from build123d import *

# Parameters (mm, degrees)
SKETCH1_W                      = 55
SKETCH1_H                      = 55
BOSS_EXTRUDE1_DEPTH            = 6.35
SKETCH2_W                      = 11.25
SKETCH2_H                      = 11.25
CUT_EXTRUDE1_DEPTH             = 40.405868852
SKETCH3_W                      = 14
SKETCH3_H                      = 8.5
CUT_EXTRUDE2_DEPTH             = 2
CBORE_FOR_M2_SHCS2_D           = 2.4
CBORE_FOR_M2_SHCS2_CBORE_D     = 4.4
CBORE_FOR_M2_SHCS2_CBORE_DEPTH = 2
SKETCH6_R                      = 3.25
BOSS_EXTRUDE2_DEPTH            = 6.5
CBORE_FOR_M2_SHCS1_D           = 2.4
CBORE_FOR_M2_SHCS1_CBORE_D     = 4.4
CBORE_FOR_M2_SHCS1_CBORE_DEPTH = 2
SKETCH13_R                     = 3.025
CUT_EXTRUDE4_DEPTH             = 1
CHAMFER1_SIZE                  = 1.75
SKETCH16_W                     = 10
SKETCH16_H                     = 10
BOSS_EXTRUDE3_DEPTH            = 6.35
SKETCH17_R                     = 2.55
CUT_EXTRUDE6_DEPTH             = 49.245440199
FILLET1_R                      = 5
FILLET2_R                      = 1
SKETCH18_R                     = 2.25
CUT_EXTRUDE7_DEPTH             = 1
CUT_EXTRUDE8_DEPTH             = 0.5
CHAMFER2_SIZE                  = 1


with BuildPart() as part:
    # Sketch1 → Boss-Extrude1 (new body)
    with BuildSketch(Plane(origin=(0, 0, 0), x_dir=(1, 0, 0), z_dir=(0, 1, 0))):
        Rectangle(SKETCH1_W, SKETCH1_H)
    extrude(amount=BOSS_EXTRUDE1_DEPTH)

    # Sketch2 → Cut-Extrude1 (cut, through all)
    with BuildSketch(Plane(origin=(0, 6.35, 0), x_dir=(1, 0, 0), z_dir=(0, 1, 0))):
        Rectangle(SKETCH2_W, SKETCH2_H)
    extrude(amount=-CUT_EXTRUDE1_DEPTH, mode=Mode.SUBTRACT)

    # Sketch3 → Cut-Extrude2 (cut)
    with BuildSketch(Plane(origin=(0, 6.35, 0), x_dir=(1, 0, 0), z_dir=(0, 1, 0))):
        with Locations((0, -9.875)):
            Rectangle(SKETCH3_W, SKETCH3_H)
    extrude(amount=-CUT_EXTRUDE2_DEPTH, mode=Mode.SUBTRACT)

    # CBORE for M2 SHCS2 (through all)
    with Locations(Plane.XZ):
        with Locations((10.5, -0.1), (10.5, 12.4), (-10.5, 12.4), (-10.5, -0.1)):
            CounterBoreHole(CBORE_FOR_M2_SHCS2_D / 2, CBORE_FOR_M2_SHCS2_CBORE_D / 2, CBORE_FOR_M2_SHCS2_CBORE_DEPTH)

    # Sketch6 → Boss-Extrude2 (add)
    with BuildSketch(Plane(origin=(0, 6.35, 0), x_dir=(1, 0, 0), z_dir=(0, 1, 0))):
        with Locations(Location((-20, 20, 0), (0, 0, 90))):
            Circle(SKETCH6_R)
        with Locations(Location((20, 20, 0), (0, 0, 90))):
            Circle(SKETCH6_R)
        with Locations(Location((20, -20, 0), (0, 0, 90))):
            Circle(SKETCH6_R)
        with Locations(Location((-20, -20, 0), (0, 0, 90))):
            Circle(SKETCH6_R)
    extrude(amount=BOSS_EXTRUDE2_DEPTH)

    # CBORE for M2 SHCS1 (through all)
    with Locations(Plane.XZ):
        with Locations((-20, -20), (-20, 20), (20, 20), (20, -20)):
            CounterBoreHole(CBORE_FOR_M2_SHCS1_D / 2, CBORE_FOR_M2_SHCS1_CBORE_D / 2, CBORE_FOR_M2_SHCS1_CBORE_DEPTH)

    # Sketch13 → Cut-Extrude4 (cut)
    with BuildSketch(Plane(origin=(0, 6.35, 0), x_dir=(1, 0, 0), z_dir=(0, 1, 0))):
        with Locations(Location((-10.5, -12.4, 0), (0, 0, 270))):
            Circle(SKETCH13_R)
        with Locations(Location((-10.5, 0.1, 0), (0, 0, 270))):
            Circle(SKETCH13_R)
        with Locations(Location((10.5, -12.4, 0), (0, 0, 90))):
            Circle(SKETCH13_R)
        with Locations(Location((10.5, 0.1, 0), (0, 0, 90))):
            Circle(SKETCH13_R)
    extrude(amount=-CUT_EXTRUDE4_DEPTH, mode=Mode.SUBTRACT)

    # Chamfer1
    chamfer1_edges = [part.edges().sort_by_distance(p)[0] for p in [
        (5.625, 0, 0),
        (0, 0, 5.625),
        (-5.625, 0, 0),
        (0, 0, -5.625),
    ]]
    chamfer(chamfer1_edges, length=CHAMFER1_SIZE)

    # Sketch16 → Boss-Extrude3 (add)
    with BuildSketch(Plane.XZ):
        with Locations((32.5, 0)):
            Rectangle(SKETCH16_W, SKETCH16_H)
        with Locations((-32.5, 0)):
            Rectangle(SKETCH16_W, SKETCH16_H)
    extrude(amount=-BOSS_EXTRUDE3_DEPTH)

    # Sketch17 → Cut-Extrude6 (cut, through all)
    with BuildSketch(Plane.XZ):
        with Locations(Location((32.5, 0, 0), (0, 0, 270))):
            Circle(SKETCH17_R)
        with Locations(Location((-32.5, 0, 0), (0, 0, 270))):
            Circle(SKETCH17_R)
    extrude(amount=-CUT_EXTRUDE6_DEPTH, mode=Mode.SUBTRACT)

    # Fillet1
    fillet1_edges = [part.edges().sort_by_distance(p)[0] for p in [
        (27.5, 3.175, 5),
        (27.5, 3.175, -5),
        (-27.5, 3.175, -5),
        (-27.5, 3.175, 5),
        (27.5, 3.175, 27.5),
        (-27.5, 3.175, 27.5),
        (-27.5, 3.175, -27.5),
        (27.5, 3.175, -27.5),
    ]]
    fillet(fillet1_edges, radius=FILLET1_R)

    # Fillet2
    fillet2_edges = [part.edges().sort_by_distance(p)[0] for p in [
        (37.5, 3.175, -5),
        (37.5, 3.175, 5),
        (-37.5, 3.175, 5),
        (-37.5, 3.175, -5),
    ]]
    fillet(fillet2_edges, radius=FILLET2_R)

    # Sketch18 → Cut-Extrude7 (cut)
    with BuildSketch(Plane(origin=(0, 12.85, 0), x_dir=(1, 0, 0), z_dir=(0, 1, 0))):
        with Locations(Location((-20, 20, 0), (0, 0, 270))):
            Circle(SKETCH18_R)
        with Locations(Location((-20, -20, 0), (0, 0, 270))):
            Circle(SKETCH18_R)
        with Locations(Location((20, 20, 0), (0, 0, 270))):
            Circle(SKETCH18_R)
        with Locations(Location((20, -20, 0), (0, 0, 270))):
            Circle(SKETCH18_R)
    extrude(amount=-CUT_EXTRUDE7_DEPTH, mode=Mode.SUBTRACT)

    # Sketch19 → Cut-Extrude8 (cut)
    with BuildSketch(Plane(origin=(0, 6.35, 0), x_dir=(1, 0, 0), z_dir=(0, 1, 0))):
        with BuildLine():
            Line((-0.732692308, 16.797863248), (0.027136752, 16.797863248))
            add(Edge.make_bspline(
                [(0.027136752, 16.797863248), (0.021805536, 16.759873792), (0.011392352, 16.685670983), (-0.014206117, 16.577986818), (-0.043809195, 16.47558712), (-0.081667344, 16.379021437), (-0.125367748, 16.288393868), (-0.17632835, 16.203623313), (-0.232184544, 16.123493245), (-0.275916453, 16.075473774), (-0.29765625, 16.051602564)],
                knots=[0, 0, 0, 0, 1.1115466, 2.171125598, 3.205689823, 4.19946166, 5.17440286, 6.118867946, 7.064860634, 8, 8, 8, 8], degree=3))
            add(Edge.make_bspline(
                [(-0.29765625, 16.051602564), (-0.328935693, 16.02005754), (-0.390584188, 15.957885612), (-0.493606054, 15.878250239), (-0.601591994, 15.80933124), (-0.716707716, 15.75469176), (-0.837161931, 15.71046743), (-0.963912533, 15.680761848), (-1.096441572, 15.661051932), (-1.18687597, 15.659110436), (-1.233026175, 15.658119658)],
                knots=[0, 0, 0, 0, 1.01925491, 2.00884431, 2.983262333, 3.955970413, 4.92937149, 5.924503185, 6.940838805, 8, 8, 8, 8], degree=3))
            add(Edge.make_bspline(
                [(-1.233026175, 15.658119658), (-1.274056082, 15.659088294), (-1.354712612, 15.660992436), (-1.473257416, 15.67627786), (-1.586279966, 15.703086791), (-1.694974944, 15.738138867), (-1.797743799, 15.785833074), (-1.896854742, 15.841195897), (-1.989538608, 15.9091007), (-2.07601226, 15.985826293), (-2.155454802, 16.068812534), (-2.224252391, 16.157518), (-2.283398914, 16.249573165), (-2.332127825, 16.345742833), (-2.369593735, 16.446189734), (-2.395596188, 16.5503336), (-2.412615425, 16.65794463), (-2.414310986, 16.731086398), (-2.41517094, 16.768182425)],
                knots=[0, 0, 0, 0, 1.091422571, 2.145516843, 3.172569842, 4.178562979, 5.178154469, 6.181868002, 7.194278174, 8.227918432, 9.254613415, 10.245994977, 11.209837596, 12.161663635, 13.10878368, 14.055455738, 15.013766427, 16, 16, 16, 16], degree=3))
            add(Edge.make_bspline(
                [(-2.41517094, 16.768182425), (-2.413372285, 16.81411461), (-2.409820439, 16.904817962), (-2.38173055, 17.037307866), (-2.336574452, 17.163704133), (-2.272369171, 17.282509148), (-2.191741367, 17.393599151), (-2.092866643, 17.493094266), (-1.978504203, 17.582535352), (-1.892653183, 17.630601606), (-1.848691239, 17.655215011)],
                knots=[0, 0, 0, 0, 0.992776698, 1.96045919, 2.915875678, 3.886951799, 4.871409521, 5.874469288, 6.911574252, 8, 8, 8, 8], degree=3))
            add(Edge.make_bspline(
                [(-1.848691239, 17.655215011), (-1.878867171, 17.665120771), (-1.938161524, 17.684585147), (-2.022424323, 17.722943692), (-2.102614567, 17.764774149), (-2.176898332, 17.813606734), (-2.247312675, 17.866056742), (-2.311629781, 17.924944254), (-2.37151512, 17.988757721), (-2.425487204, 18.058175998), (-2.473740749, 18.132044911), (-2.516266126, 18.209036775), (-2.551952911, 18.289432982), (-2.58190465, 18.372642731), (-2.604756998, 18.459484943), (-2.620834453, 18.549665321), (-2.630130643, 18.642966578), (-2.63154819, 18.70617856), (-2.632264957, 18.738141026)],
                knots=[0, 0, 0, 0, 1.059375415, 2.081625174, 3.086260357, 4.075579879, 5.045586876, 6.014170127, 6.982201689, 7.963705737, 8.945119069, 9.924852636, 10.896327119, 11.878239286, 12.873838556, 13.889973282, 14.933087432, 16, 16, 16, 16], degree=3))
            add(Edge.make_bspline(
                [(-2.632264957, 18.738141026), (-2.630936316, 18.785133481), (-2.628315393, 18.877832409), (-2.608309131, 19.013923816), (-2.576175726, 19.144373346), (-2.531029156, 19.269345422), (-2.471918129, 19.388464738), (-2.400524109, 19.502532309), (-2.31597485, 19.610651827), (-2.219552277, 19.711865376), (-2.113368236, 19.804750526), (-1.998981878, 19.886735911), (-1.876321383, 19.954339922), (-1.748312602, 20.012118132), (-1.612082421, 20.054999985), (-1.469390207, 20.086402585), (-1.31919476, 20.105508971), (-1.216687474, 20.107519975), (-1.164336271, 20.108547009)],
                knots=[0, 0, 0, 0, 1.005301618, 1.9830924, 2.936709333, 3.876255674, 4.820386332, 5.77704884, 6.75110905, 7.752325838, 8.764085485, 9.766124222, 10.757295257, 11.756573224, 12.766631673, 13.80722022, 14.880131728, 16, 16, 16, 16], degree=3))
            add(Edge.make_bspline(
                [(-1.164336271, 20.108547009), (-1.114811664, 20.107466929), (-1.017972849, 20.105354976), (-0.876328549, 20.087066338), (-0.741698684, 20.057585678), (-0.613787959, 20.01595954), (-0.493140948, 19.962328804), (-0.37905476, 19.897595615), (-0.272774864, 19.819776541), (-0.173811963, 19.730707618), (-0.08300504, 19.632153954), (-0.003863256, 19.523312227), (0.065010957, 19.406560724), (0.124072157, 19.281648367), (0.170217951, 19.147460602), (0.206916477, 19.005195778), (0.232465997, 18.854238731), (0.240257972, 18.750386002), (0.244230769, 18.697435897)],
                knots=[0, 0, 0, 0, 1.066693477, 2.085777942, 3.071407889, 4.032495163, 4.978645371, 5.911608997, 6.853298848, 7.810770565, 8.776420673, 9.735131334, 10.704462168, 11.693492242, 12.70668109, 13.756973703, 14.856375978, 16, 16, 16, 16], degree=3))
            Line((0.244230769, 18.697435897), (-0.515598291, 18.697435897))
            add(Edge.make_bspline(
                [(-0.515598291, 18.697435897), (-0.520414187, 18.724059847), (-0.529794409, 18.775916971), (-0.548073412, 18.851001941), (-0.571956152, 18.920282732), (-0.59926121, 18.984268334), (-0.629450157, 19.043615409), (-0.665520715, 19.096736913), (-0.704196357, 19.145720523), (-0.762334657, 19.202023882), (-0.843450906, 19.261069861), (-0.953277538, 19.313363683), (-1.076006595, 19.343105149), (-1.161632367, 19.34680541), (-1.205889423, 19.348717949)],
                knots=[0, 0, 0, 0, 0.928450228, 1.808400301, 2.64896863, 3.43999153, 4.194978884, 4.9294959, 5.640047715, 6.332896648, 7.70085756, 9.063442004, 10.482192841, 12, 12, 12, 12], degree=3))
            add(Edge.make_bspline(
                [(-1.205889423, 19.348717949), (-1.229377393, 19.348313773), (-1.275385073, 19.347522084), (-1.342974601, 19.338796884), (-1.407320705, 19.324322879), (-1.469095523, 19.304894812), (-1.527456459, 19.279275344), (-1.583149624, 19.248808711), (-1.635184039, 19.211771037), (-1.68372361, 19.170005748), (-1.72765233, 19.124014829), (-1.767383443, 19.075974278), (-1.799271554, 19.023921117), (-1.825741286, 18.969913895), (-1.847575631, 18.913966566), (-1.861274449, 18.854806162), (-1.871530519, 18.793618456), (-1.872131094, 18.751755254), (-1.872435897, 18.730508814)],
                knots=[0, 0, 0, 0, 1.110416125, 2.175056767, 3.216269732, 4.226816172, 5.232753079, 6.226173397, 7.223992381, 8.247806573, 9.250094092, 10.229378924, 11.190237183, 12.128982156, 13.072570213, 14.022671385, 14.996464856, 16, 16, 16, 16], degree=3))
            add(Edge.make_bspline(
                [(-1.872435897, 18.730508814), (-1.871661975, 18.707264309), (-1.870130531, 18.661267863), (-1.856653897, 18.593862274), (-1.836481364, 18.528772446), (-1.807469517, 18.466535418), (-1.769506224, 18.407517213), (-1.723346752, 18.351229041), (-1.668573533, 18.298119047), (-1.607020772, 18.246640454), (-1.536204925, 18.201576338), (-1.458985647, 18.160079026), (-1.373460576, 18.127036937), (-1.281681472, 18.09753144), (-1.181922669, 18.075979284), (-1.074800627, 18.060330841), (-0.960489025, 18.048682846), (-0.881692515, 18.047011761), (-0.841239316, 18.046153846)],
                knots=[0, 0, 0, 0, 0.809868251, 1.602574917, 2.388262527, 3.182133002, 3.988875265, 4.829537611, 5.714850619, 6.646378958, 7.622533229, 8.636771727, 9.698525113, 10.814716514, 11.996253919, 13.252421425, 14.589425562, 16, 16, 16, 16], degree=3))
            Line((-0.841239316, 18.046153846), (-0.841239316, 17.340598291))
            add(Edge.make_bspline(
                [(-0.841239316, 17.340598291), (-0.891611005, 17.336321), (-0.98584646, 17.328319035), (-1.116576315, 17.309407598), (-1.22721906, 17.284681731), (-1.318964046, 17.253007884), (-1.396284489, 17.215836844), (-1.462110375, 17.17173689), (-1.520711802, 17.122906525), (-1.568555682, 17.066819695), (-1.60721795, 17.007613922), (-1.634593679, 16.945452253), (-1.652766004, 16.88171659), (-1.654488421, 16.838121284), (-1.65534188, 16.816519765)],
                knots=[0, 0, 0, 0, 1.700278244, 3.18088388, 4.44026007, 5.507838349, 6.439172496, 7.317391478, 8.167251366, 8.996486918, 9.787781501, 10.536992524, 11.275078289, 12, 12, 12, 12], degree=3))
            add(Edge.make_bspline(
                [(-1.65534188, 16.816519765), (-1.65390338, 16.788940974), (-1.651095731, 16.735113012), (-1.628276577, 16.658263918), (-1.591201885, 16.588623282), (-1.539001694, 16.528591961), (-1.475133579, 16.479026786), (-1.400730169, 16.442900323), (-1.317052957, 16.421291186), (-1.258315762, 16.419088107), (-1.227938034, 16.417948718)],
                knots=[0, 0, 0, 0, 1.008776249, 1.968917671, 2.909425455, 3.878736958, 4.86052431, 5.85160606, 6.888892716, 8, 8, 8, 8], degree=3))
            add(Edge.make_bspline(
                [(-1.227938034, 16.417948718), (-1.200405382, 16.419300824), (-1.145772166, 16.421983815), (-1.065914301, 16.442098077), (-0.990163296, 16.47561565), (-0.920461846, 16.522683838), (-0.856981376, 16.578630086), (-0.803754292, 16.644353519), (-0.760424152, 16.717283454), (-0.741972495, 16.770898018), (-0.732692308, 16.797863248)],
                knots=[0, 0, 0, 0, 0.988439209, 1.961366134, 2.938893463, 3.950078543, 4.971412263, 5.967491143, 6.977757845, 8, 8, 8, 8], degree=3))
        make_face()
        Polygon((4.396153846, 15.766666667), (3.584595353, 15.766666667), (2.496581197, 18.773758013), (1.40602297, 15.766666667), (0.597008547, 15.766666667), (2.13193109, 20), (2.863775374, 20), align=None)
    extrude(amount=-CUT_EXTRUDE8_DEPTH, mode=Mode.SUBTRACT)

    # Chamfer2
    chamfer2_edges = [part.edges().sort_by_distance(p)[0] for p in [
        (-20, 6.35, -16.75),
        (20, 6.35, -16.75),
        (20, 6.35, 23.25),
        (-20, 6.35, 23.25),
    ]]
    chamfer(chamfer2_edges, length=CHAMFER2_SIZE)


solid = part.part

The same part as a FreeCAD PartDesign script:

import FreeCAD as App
import Part
import Sketcher

V = App.Vector


def edges_at(feature, points):
    """Names of the edges that pass closest to the given points."""
    edges = feature.Shape.Edges
    near = lambda p: min(range(len(edges)), key=lambda i: edges[i].distToShape(Part.Vertex(*p))[0])
    return sorted({f"Edge{near(p) + 1}" for p in points})

doc = App.newDocument("Part")
body = doc.addObject("PartDesign::Body", "Body")

# Sketch on XZ plane
sketch1 = body.newObject("Sketcher::SketchObject", "Sketch")
sketch1.AttachmentSupport = (doc.getObject("XZ_Plane"), [""])
sketch1.MapMode = "FlatFace"
sketch1.addGeometry(Part.LineSegment(V(-28, -28, 0), V(-28, 28, 0)), False)
sketch1.addGeometry(Part.LineSegment(V(-28, 28, 0), V(28, 28, 0)), False)
sketch1.addGeometry(Part.LineSegment(V(28, 28, 0), V(28, -28, 0)), False)
sketch1.addGeometry(Part.LineSegment(V(28, -28, 0), V(-28, -28, 0)), False)
sketch1.addConstraint(Sketcher.Constraint("Coincident", 0, 2, 1, 1))
sketch1.addConstraint(Sketcher.Constraint("Coincident", 1, 2, 2, 1))
sketch1.addConstraint(Sketcher.Constraint("Coincident", 2, 2, 3, 1))
sketch1.addConstraint(Sketcher.Constraint("Coincident", 3, 2, 0, 1))
sketch1.addConstraint(Sketcher.Constraint("Vertical", 0))
sketch1.addConstraint(Sketcher.Constraint("Horizontal", 1))
sketch1.addConstraint(Sketcher.Constraint("Vertical", 2))
sketch1.addConstraint(Sketcher.Constraint("Horizontal", 3))
sketch1.addConstraint(Sketcher.Constraint("Symmetric", 0, 2, 2, 2, -1, 1))
sketch1.addConstraint(Sketcher.Constraint("Equal", 3, 0))
sketch1.addConstraint(Sketcher.Constraint("DistanceX", 1, 1, 1, 2, 55.0))
pad1 = body.newObject("PartDesign::Pad", "Pad")
pad1.Profile = sketch1
pad1.Length = 6.35
pad1.Reversed = True

# Sketch on XZ plane
sketch2 = body.newObject("Sketcher::SketchObject", "Sketch001")
sketch2.AttachmentSupport = (doc.getObject("XZ_Plane"), [""])
sketch2.MapMode = "FlatFace"
sketch2.AttachmentOffset = App.Placement(V(0, 0, -6.35), App.Rotation())
sketch2.addGeometry(Part.LineSegment(V(-6, -6, 0), V(-6, 6, 0)), False)
sketch2.addGeometry(Part.LineSegment(V(-6, 6, 0), V(6, 6, 0)), False)
sketch2.addGeometry(Part.LineSegment(V(6, 6, 0), V(6, -6, 0)), False)
sketch2.addGeometry(Part.LineSegment(V(6, -6, 0), V(-6, -6, 0)), False)
sketch2.addConstraint(Sketcher.Constraint("Coincident", 0, 2, 1, 1))
sketch2.addConstraint(Sketcher.Constraint("Coincident", 1, 2, 2, 1))
sketch2.addConstraint(Sketcher.Constraint("Coincident", 2, 2, 3, 1))
sketch2.addConstraint(Sketcher.Constraint("Coincident", 3, 2, 0, 1))
sketch2.addConstraint(Sketcher.Constraint("Vertical", 0))
sketch2.addConstraint(Sketcher.Constraint("Horizontal", 1))
sketch2.addConstraint(Sketcher.Constraint("Vertical", 2))
sketch2.addConstraint(Sketcher.Constraint("Horizontal", 3))
sketch2.addConstraint(Sketcher.Constraint("Symmetric", 0, 2, 2, 2, -1, 1))
sketch2.addConstraint(Sketcher.Constraint("Equal", 3, 0))
sketch2.addConstraint(Sketcher.Constraint("DistanceX", 1, 1, 1, 2, 11.25))
pocket1 = body.newObject("PartDesign::Pocket", "Pocket")
pocket1.Profile = sketch2
pocket1.Type = "ThroughAll"
pocket1.Reversed = True

# Sketch on XZ plane
sketch3 = body.newObject("Sketcher::SketchObject", "Sketch002")
sketch3.AttachmentSupport = (doc.getObject("XZ_Plane"), [""])
sketch3.MapMode = "FlatFace"
sketch3.AttachmentOffset = App.Placement(V(0, 0, -6.35), App.Rotation())
sketch3.addGeometry(Part.LineSegment(V(-7, 6, 0), V(-7, 14, 0)), False)
sketch3.addGeometry(Part.LineSegment(V(-7, 14, 0), V(7, 14, 0)), False)
sketch3.addGeometry(Part.LineSegment(V(7, 14, 0), V(7, 6, 0)), False)
sketch3.addGeometry(Part.LineSegment(V(7, 6, 0), V(-7, 6, 0)), False)
sketch3.addConstraint(Sketcher.Constraint("Coincident", 0, 2, 1, 1))
sketch3.addConstraint(Sketcher.Constraint("Coincident", 1, 2, 2, 1))
sketch3.addConstraint(Sketcher.Constraint("Coincident", 2, 2, 3, 1))
sketch3.addConstraint(Sketcher.Constraint("Coincident", 3, 2, 0, 1))
sketch3.addConstraint(Sketcher.Constraint("Vertical", 0))
sketch3.addConstraint(Sketcher.Constraint("Horizontal", 1))
sketch3.addConstraint(Sketcher.Constraint("Vertical", 2))
sketch3.addConstraint(Sketcher.Constraint("Horizontal", 3))
sketch3.addConstraint(Sketcher.Constraint("DistanceX", 1, 1, 1, 2, 14.0))
sketch3.addConstraint(Sketcher.Constraint("DistanceY", 0, 1, 0, 2, 8.5))
sketch3.addConstraint(Sketcher.Constraint("DistanceX", 0, 2, -1, 1, 7.0))
sketch3.addConstraint(Sketcher.Constraint("DistanceY", -1, 1, 0, 2, 14.125))
pocket2 = body.newObject("PartDesign::Pocket", "Pocket001")
pocket2.Profile = sketch3
pocket2.Length = 2
pocket2.Reversed = True

# Sketch on XZ plane
sketch4 = body.newObject("Sketcher::SketchObject", "Sketch003")
sketch4.AttachmentSupport = (doc.getObject("XZ_Plane"), [""])
sketch4.MapMode = "FlatFace"
sketch4.addGeometry(Part.Circle(V(10.5, -0.1, 0), V(0, 0, 1), 1.2), False)
sketch4.addGeometry(Part.Circle(V(10.5, 12.4, 0), V(0, 0, 1), 1.2), False)
sketch4.addGeometry(Part.Circle(V(-10.5, 12.4, 0), V(0, 0, 1), 1.2), False)
sketch4.addGeometry(Part.Circle(V(-10.5, -0.1, 0), V(0, 0, 1), 1.2), False)
sketch4.addConstraint(Sketcher.Constraint("Equal", 0, 1))
sketch4.addConstraint(Sketcher.Constraint("Equal", 1, 2))
sketch4.addConstraint(Sketcher.Constraint("Equal", 2, 3))
sketch4.addConstraint(Sketcher.Constraint("Symmetric", 1, 3, 2, 3, -2))
sketch4.addConstraint(Sketcher.Constraint("Symmetric", 0, 3, 3, 3, -2))
sketch4.addConstraint(Sketcher.Constraint("Vertical", 0, 3, 1, 3))
sketch4.addConstraint(Sketcher.Constraint("Diameter", 0, 2.4))
sketch4.addConstraint(Sketcher.Constraint("DistanceX", 2, 3, 1, 3, 21.0))
sketch4.addConstraint(Sketcher.Constraint("DistanceY", 0, 3, -1, 1, 0.1))
sketch4.addConstraint(Sketcher.Constraint("DistanceY", -1, 1, 1, 3, 12.4))
doc.recompute()
hole = body.newObject("PartDesign::Hole", "Hole")
hole.Profile = sketch4
hole.ThreadType = "None"
hole.Diameter = 2.4
hole.DepthType = "ThroughAll"
hole.HoleCutType = "Counterbore"
hole.HoleCutDiameter = 4.4
hole.HoleCutDepth = 2

# Sketch on XZ plane
sketch5 = body.newObject("Sketcher::SketchObject", "Sketch004")
sketch5.AttachmentSupport = (doc.getObject("XZ_Plane"), [""])
sketch5.MapMode = "FlatFace"
sketch5.AttachmentOffset = App.Placement(V(0, 0, -6.35), App.Rotation())
sketch5.addGeometry(Part.Circle(V(-20, -20, 0), V(0, 0, 1), 3.2), False)
sketch5.addGeometry(Part.Circle(V(20, -20, 0), V(0, 0, 1), 3.2), False)
sketch5.addGeometry(Part.Circle(V(20, 20, 0), V(0, 0, 1), 3.2), False)
sketch5.addGeometry(Part.Circle(V(-20, 20, 0), V(0, 0, 1), 3.2), False)
sketch5.addConstraint(Sketcher.Constraint("Equal", 0, 1))
sketch5.addConstraint(Sketcher.Constraint("Equal", 1, 2))
sketch5.addConstraint(Sketcher.Constraint("Equal", 2, 3))
sketch5.addConstraint(Sketcher.Constraint("Symmetric", 0, 3, 2, 3, -1, 1))
sketch5.addConstraint(Sketcher.Constraint("Symmetric", 1, 3, 3, 3, -1, 1))
sketch5.addConstraint(Sketcher.Constraint("Symmetric", 0, 3, 1, 3, -2))
sketch5.addConstraint(Sketcher.Constraint("Diameter", 0, 6.5))
sketch5.addConstraint(Sketcher.Constraint("DistanceX", 0, 3, -1, 1, 20.0))
sketch5.addConstraint(Sketcher.Constraint("DistanceY", 0, 3, -1, 1, 20.0))
pad2 = body.newObject("PartDesign::Pad", "Pad001")
pad2.Profile = sketch5
pad2.Length = 6.5
pad2.Reversed = True

# Sketch on XZ plane
sketch6 = body.newObject("Sketcher::SketchObject", "Sketch005")
sketch6.AttachmentSupport = (doc.getObject("XZ_Plane"), [""])
sketch6.MapMode = "FlatFace"
sketch6.addGeometry(Part.Circle(V(-20, -20, 0), V(0, 0, 1), 1.2), False)
sketch6.addGeometry(Part.Circle(V(-20, 20, 0), V(0, 0, 1), 1.2), False)
sketch6.addGeometry(Part.Circle(V(20, 20, 0), V(0, 0, 1), 1.2), False)
sketch6.addGeometry(Part.Circle(V(20, -20, 0), V(0, 0, 1), 1.2), False)
sketch6.addConstraint(Sketcher.Constraint("Equal", 0, 1))
sketch6.addConstraint(Sketcher.Constraint("Equal", 1, 2))
sketch6.addConstraint(Sketcher.Constraint("Equal", 2, 3))
sketch6.addConstraint(Sketcher.Constraint("Symmetric", 0, 3, 2, 3, -1, 1))
sketch6.addConstraint(Sketcher.Constraint("Symmetric", 1, 3, 3, 3, -1, 1))
sketch6.addConstraint(Sketcher.Constraint("Symmetric", 1, 3, 2, 3, -2))
sketch6.addConstraint(Sketcher.Constraint("Diameter", 0, 2.4))
sketch6.addConstraint(Sketcher.Constraint("DistanceX", 0, 3, -1, 1, 20.0))
sketch6.addConstraint(Sketcher.Constraint("DistanceY", 0, 3, -1, 1, 20.0))
doc.recompute()
hole2 = body.newObject("PartDesign::Hole", "Hole001")
hole2.Profile = sketch6
hole2.ThreadType = "None"
hole2.Diameter = 2.4
hole2.DepthType = "ThroughAll"
hole2.HoleCutType = "Counterbore"
hole2.HoleCutDiameter = 4.4
hole2.HoleCutDepth = 2

# Sketch on XZ plane
sketch7 = body.newObject("Sketcher::SketchObject", "Sketch006")
sketch7.AttachmentSupport = (doc.getObject("XZ_Plane"), [""])
sketch7.MapMode = "FlatFace"
sketch7.AttachmentOffset = App.Placement(V(0, 0, -6.35), App.Rotation())
sketch7.addGeometry(Part.Circle(V(-10.5, 12.4, 0), V(0, 0, 1), 3), False)
sketch7.addGeometry(Part.Circle(V(-10.5, -0.1, 0), V(0, 0, 1), 3), False)
sketch7.addGeometry(Part.Circle(V(10.5, 12.4, 0), V(0, 0, 1), 3), False)
sketch7.addGeometry(Part.Circle(V(10.5, -0.1, 0), V(0, 0, 1), 3), False)
sketch7.addConstraint(Sketcher.Constraint("Equal", 0, 1))
sketch7.addConstraint(Sketcher.Constraint("Equal", 1, 2))
sketch7.addConstraint(Sketcher.Constraint("Equal", 2, 3))
sketch7.addConstraint(Sketcher.Constraint("Symmetric", 0, 3, 2, 3, -2))
sketch7.addConstraint(Sketcher.Constraint("Symmetric", 1, 3, 3, 3, -2))
sketch7.addConstraint(Sketcher.Constraint("Vertical", 0, 3, 1, 3))
sketch7.addConstraint(Sketcher.Constraint("Diameter", 0, 6.05))
sketch7.addConstraint(Sketcher.Constraint("DistanceX", 0, 3, 2, 3, 21.0))
sketch7.addConstraint(Sketcher.Constraint("DistanceY", -1, 1, 0, 3, 12.4))
sketch7.addConstraint(Sketcher.Constraint("DistanceY", 1, 3, -1, 1, 0.1))
pocket3 = body.newObject("PartDesign::Pocket", "Pocket002")
pocket3.Profile = sketch7
pocket3.Length = 1
pocket3.Reversed = True
doc.recompute()

chamfer = body.newObject("PartDesign::Chamfer", "Chamfer")
chamfer.Base = (pocket3, edges_at(pocket3, [
    (5.625, 0, 0),
    (0, 0, 5.625),
    (-5.625, 0, 0),
    (0, 0, -5.625),
]))
chamfer.Size = 1.75

# Sketch on XZ plane
sketch8 = body.newObject("Sketcher::SketchObject", "Sketch007")
sketch8.AttachmentSupport = (doc.getObject("XZ_Plane"), [""])
sketch8.MapMode = "FlatFace"
sketch8.addGeometry(Part.LineSegment(V(28, 5, 0), V(28, -5, 0)), False)
sketch8.addGeometry(Part.LineSegment(V(28, -5, 0), V(38, -5, 0)), False)
sketch8.addGeometry(Part.LineSegment(V(38, -5, 0), V(38, 5, 0)), False)
sketch8.addGeometry(Part.LineSegment(V(38, 5, 0), V(28, 5, 0)), False)
sketch8.addGeometry(Part.LineSegment(V(-38, 5, 0), V(-38, -5, 0)), False)
sketch8.addGeometry(Part.LineSegment(V(-38, -5, 0), V(-28, -5, 0)), False)
sketch8.addGeometry(Part.LineSegment(V(-28, -5, 0), V(-28, 5, 0)), False)
sketch8.addGeometry(Part.LineSegment(V(-28, 5, 0), V(-38, 5, 0)), False)
sketch8.addConstraint(Sketcher.Constraint("Coincident", 0, 2, 1, 1))
sketch8.addConstraint(Sketcher.Constraint("Coincident", 1, 2, 2, 1))
sketch8.addConstraint(Sketcher.Constraint("Coincident", 2, 2, 3, 1))
sketch8.addConstraint(Sketcher.Constraint("Coincident", 3, 2, 0, 1))
sketch8.addConstraint(Sketcher.Constraint("Coincident", 4, 2, 5, 1))
sketch8.addConstraint(Sketcher.Constraint("Coincident", 5, 2, 6, 1))
sketch8.addConstraint(Sketcher.Constraint("Coincident", 6, 2, 7, 1))
sketch8.addConstraint(Sketcher.Constraint("Coincident", 7, 2, 4, 1))
sketch8.addConstraint(Sketcher.Constraint("Vertical", 0))
sketch8.addConstraint(Sketcher.Constraint("Horizontal", 1))
sketch8.addConstraint(Sketcher.Constraint("Vertical", 2))
sketch8.addConstraint(Sketcher.Constraint("Horizontal", 3))
sketch8.addConstraint(Sketcher.Constraint("Vertical", 4))
sketch8.addConstraint(Sketcher.Constraint("Horizontal", 5))
sketch8.addConstraint(Sketcher.Constraint("Vertical", 6))
sketch8.addConstraint(Sketcher.Constraint("Horizontal", 7))
sketch8.addConstraint(Sketcher.Constraint("Symmetric", 2, 2, 4, 2, -1, 1))
sketch8.addConstraint(Sketcher.Constraint("Symmetric", 0, 2, 6, 2, -1, 1))
sketch8.addConstraint(Sketcher.Constraint("Horizontal", 1, 2, 4, 2))
sketch8.addConstraint(Sketcher.Constraint("Equal", 7, 0))
sketch8.addConstraint(Sketcher.Constraint("DistanceX", 1, 1, 1, 2, 10.0))
sketch8.addConstraint(Sketcher.Constraint("DistanceX", 4, 2, 0, 2, 65.0))
pad3 = body.newObject("PartDesign::Pad", "Pad002")
pad3.Profile = sketch8
pad3.Length = 6.35
pad3.Reversed = True

# Sketch on XZ plane
sketch9 = body.newObject("Sketcher::SketchObject", "Sketch008")
sketch9.AttachmentSupport = (doc.getObject("XZ_Plane"), [""])
sketch9.MapMode = "FlatFace"
sketch9.addGeometry(Part.Circle(V(32.5, 0, 0), V(0, 0, 1), 2.5), False)
sketch9.addGeometry(Part.Circle(V(-32.5, 0, 0), V(0, 0, 1), 2.5), False)
sketch9.addConstraint(Sketcher.Constraint("Equal", 0, 1))
sketch9.addConstraint(Sketcher.Constraint("Symmetric", 0, 3, 1, 3, -1, 1))
sketch9.addConstraint(Sketcher.Constraint("PointOnObject", 0, 3, -1))
sketch9.addConstraint(Sketcher.Constraint("Diameter", 0, 5.1))
sketch9.addConstraint(Sketcher.Constraint("DistanceX", 1, 3, 0, 3, 65.0))
pocket4 = body.newObject("PartDesign::Pocket", "Pocket003")
pocket4.Profile = sketch9
pocket4.Type = "ThroughAll"
doc.recompute()

fillet = body.newObject("PartDesign::Fillet", "Fillet")
fillet.Base = (pocket4, edges_at(pocket4, [
    (27.5, 3.175, 5),
    (27.5, 3.175, -5),
    (-27.5, 3.175, -5),
    (-27.5, 3.175, 5),
    (27.5, 3.175, 27.5),
    (-27.5, 3.175, 27.5),
    (-27.5, 3.175, -27.5),
    (27.5, 3.175, -27.5),
]))
fillet.Radius = 5
doc.recompute()

fillet2 = body.newObject("PartDesign::Fillet", "Fillet001")
fillet2.Base = (fillet, edges_at(fillet, [
    (37.5, 3.175, -5),
    (37.5, 3.175, 5),
    (-37.5, 3.175, 5),
    (-37.5, 3.175, -5),
]))
fillet2.Radius = 1

# Sketch on XZ plane
sketch10 = body.newObject("Sketcher::SketchObject", "Sketch009")
sketch10.AttachmentSupport = (doc.getObject("XZ_Plane"), [""])
sketch10.MapMode = "FlatFace"
sketch10.AttachmentOffset = App.Placement(V(0, 0, -12.85), App.Rotation())
sketch10.addGeometry(Part.Circle(V(-20, -20, 0), V(0, 0, 1), 2.2), False)
sketch10.addGeometry(Part.Circle(V(-20, 20, 0), V(0, 0, 1), 2.2), False)
sketch10.addGeometry(Part.Circle(V(20, -20, 0), V(0, 0, 1), 2.2), False)
sketch10.addGeometry(Part.Circle(V(20, 20, 0), V(0, 0, 1), 2.2), False)
sketch10.addConstraint(Sketcher.Constraint("Equal", 0, 1))
sketch10.addConstraint(Sketcher.Constraint("Equal", 1, 2))
sketch10.addConstraint(Sketcher.Constraint("Equal", 2, 3))
sketch10.addConstraint(Sketcher.Constraint("Symmetric", 1, 3, 2, 3, -1, 1))
sketch10.addConstraint(Sketcher.Constraint("Symmetric", 0, 3, 3, 3, -1, 1))
sketch10.addConstraint(Sketcher.Constraint("Symmetric", 0, 3, 2, 3, -2))
sketch10.addConstraint(Sketcher.Constraint("Diameter", 0, 4.5))
sketch10.addConstraint(Sketcher.Constraint("DistanceX", 0, 3, -1, 1, 20.0))
sketch10.addConstraint(Sketcher.Constraint("DistanceY", 0, 3, -1, 1, 20.0))
pocket5 = body.newObject("PartDesign::Pocket", "Pocket004")
pocket5.Profile = sketch10
pocket5.Length = 1
pocket5.Reversed = True

# Sketch on XZ plane
sketch11 = body.newObject("Sketcher::SketchObject", "Sketch010")
sketch11.AttachmentSupport = (doc.getObject("XZ_Plane"), [""])
sketch11.MapMode = "FlatFace"
sketch11.AttachmentOffset = App.Placement(V(0, 0, -6.35), App.Rotation())
sketch11.addGeometry(Part.LineSegment(V(0.027137, -16.797863, 0), V(-0.732692, -16.797863, 0)), False)
sketch11.addGeometry(Part.BSplineCurve([V(-1.227938, -16.417949, 0), V(-1.200405, -16.419301, 0), V(-1.145772, -16.421984, 0), V(-1.065914, -16.442098, 0), V(-0.990163, -16.475616, 0), V(-0.920462, -16.522684, 0), V(-0.856981, -16.57863, 0), V(-0.803754, -16.644354, 0), V(-0.760424, -16.717283, 0), V(-0.741972, -16.770898, 0), V(-0.732692, -16.797863, 0)], [4, 1, 1, 1, 1, 1, 1, 1, 4], [0, 0.988439209, 1.961366134, 2.938893463, 3.950078543, 4.971412263, 5.967491143, 6.977757845, 8], False, 3, [1, 1, 1, 1, 1, 1, 1, 1, 1, 1, 1], False), False)
sketch11.addGeometry(Part.BSplineCurve([V(-1.655342, -16.81652, 0), V(-1.653903, -16.788941, 0), V(-1.651096, -16.735113, 0), V(-1.628277, -16.658264, 0), V(-1.591202, -16.588623, 0), V(-1.539002, -16.528592, 0), V(-1.475134, -16.479027, 0), V(-1.40073, -16.4429, 0), V(-1.317053, -16.421291, 0), V(-1.258316, -16.419088, 0), V(-1.227938, -16.417949, 0)], [4, 1, 1, 1, 1, 1, 1, 1, 4], [0, 1.008776249, 1.968917671, 2.909425455, 3.878736958, 4.86052431, 5.85160606, 6.888892716, 8], False, 3, [1, 1, 1, 1, 1, 1, 1, 1, 1, 1, 1], False), False)
sketch11.addGeometry(Part.BSplineCurve([V(-0.841239, -17.340598, 0), V(-0.891611, -17.336321, 0), V(-0.985846, -17.328319, 0), V(-1.116576, -17.309408, 0), V(-1.227219, -17.284682, 0), V(-1.318964, -17.253008, 0), V(-1.396284, -17.215837, 0), V(-1.46211, -17.171737, 0), V(-1.520712, -17.122907, 0), V(-1.568556, -17.06682, 0), V(-1.607218, -17.007614, 0), V(-1.634594, -16.945452, 0), V(-1.652766, -16.881717, 0), V(-1.654488, -16.838121, 0), V(-1.655342, -16.81652, 0)], [4, 1, 1, 1, 1, 1, 1, 1, 1, 1, 1, 1, 4], [0, 1.700278244, 3.18088388, 4.44026007, 5.507838349, 6.439172496, 7.317391478, 8.167251366, 8.996486918, 9.787781501, 10.536992524, 11.275078289, 12], False, 3, [1, 1, 1, 1, 1, 1, 1, 1, 1, 1, 1, 1, 1, 1, 1], False), False)
sketch11.addGeometry(Part.LineSegment(V(-0.841239, -17.340598, 0), V(-0.841239, -18.046154, 0)), False)
sketch11.addGeometry(Part.BSplineCurve([V(-1.872436, -18.730509, 0), V(-1.871662, -18.707264, 0), V(-1.870131, -18.661268, 0), V(-1.856654, -18.593862, 0), V(-1.836481, -18.528772, 0), V(-1.80747, -18.466535, 0), V(-1.769506, -18.407517, 0), V(-1.723347, -18.351229, 0), V(-1.668574, -18.298119, 0), V(-1.607021, -18.24664, 0), V(-1.536205, -18.201576, 0), V(-1.458986, -18.160079, 0), V(-1.373461, -18.127037, 0), V(-1.281681, -18.097531, 0), V(-1.181923, -18.075979, 0), V(-1.074801, -18.060331, 0), V(-0.960489, -18.048683, 0), V(-0.881693, -18.047012, 0), V(-0.841239, -18.046154, 0)], [4, 1, 1, 1, 1, 1, 1, 1, 1, 1, 1, 1, 1, 1, 1, 1, 4], [0, 0.809868251, 1.602574917, 2.388262527, 3.182133002, 3.988875265, 4.829537611, 5.714850619, 6.646378958, 7.622533229, 8.636771727, 9.698525113, 10.814716514, 11.996253919, 13.252421425, 14.589425562, 16], False, 3, [1, 1, 1, 1, 1, 1, 1, 1, 1, 1, 1, 1, 1, 1, 1, 1, 1, 1, 1], False), False)
sketch11.addGeometry(Part.BSplineCurve([V(-1.205889, -19.348718, 0), V(-1.229377, -19.348314, 0), V(-1.275385, -19.347522, 0), V(-1.342975, -19.338797, 0), V(-1.407321, -19.324323, 0), V(-1.469096, -19.304895, 0), V(-1.527456, -19.279275, 0), V(-1.58315, -19.248809, 0), V(-1.635184, -19.211771, 0), V(-1.683724, -19.170006, 0), V(-1.727652, -19.124015, 0), V(-1.767383, -19.075974, 0), V(-1.799272, -19.023921, 0), V(-1.825741, -18.969914, 0), V(-1.847576, -18.913967, 0), V(-1.861274, -18.854806, 0), V(-1.871531, -18.793618, 0), V(-1.872131, -18.751755, 0), V(-1.872436, -18.730509, 0)], [4, 1, 1, 1, 1, 1, 1, 1, 1, 1, 1, 1, 1, 1, 1, 1, 4], [0, 1.110416125, 2.175056767, 3.216269732, 4.226816172, 5.232753079, 6.226173397, 7.223992381, 8.247806573, 9.250094092, 10.229378924, 11.190237183, 12.128982156, 13.072570213, 14.022671385, 14.996464856, 16], False, 3, [1, 1, 1, 1, 1, 1, 1, 1, 1, 1, 1, 1, 1, 1, 1, 1, 1, 1, 1], False), False)
sketch11.addGeometry(Part.BSplineCurve([V(-0.515598, -18.697436, 0), V(-0.520414, -18.72406, 0), V(-0.529794, -18.775917, 0), V(-0.548073, -18.851002, 0), V(-0.571956, -18.920283, 0), V(-0.599261, -18.984268, 0), V(-0.62945, -19.043615, 0), V(-0.665521, -19.096737, 0), V(-0.704196, -19.145721, 0), V(-0.762335, -19.202024, 0), V(-0.843451, -19.26107, 0), V(-0.953278, -19.313364, 0), V(-1.076007, -19.343105, 0), V(-1.161632, -19.346805, 0), V(-1.205889, -19.348718, 0)], [4, 1, 1, 1, 1, 1, 1, 1, 1, 1, 1, 1, 4], [0, 0.928450228, 1.808400301, 2.64896863, 3.43999153, 4.194978884, 4.9294959, 5.640047715, 6.332896648, 7.70085756, 9.063442004, 10.482192841, 12], False, 3, [1, 1, 1, 1, 1, 1, 1, 1, 1, 1, 1, 1, 1, 1, 1], False), False)
sketch11.addGeometry(Part.LineSegment(V(-0.515598, -18.697436, 0), V(0.244231, -18.697436, 0)), False)
sketch11.addGeometry(Part.BSplineCurve([V(-1.164336, -20.108547, 0), V(-1.114812, -20.107467, 0), V(-1.017973, -20.105355, 0), V(-0.876329, -20.087066, 0), V(-0.741699, -20.057586, 0), V(-0.613788, -20.01596, 0), V(-0.493141, -19.962329, 0), V(-0.379055, -19.897596, 0), V(-0.272775, -19.819777, 0), V(-0.173812, -19.730708, 0), V(-0.083005, -19.632154, 0), V(-0.003863, -19.523312, 0), V(0.065011, -19.406561, 0), V(0.124072, -19.281648, 0), V(0.170218, -19.147461, 0), V(0.206916, -19.005196, 0), V(0.232466, -18.854239, 0), V(0.240258, -18.750386, 0), V(0.244231, -18.697436, 0)], [4, 1, 1, 1, 1, 1, 1, 1, 1, 1, 1, 1, 1, 1, 1, 1, 4], [0, 1.066693477, 2.085777942, 3.071407889, 4.032495163, 4.978645371, 5.911608997, 6.853298848, 7.810770565, 8.776420673, 9.735131334, 10.704462168, 11.693492242, 12.70668109, 13.756973703, 14.856375978, 16], False, 3, [1, 1, 1, 1, 1, 1, 1, 1, 1, 1, 1, 1, 1, 1, 1, 1, 1, 1, 1], False), False)
sketch11.addGeometry(Part.BSplineCurve([V(-2.632265, -18.738141, 0), V(-2.630936, -18.785133, 0), V(-2.628315, -18.877832, 0), V(-2.608309, -19.013924, 0), V(-2.576176, -19.144373, 0), V(-2.531029, -19.269345, 0), V(-2.471918, -19.388465, 0), V(-2.400524, -19.502532, 0), V(-2.315975, -19.610652, 0), V(-2.219552, -19.711865, 0), V(-2.113368, -19.804751, 0), V(-1.998982, -19.886736, 0), V(-1.876321, -19.95434, 0), V(-1.748313, -20.012118, 0), V(-1.612082, -20.055, 0), V(-1.46939, -20.086403, 0), V(-1.319195, -20.105509, 0), V(-1.216687, -20.10752, 0), V(-1.164336, -20.108547, 0)], [4, 1, 1, 1, 1, 1, 1, 1, 1, 1, 1, 1, 1, 1, 1, 1, 4], [0, 1.005301618, 1.9830924, 2.936709333, 3.876255674, 4.820386332, 5.77704884, 6.75110905, 7.752325838, 8.764085485, 9.766124222, 10.757295257, 11.756573224, 12.766631673, 13.80722022, 14.880131728, 16], False, 3, [1, 1, 1, 1, 1, 1, 1, 1, 1, 1, 1, 1, 1, 1, 1, 1, 1, 1, 1], False), False)
sketch11.addGeometry(Part.BSplineCurve([V(-1.848691, -17.655215, 0), V(-1.878867, -17.665121, 0), V(-1.938162, -17.684585, 0), V(-2.022424, -17.722944, 0), V(-2.102615, -17.764774, 0), V(-2.176898, -17.813607, 0), V(-2.247313, -17.866057, 0), V(-2.31163, -17.924944, 0), V(-2.371515, -17.988758, 0), V(-2.425487, -18.058176, 0), V(-2.473741, -18.132045, 0), V(-2.516266, -18.209037, 0), V(-2.551953, -18.289433, 0), V(-2.581905, -18.372643, 0), V(-2.604757, -18.459485, 0), V(-2.620834, -18.549665, 0), V(-2.630131, -18.642967, 0), V(-2.631548, -18.706179, 0), V(-2.632265, -18.738141, 0)], [4, 1, 1, 1, 1, 1, 1, 1, 1, 1, 1, 1, 1, 1, 1, 1, 4], [0, 1.059375415, 2.081625174, 3.086260357, 4.075579879, 5.045586876, 6.014170127, 6.982201689, 7.963705737, 8.945119069, 9.924852636, 10.896327119, 11.878239286, 12.873838556, 13.889973282, 14.933087432, 16], False, 3, [1, 1, 1, 1, 1, 1, 1, 1, 1, 1, 1, 1, 1, 1, 1, 1, 1, 1, 1], False), False)
sketch11.addGeometry(Part.BSplineCurve([V(-2.415171, -16.768182, 0), V(-2.413372, -16.814115, 0), V(-2.40982, -16.904818, 0), V(-2.381731, -17.037308, 0), V(-2.336574, -17.163704, 0), V(-2.272369, -17.282509, 0), V(-2.191741, -17.393599, 0), V(-2.092867, -17.493094, 0), V(-1.978504, -17.582535, 0), V(-1.892653, -17.630602, 0), V(-1.848691, -17.655215, 0)], [4, 1, 1, 1, 1, 1, 1, 1, 4], [0, 0.992776698, 1.96045919, 2.915875678, 3.886951799, 4.871409521, 5.874469288, 6.911574252, 8], False, 3, [1, 1, 1, 1, 1, 1, 1, 1, 1, 1, 1], False), False)
sketch11.addGeometry(Part.BSplineCurve([V(-1.233026, -15.65812, 0), V(-1.274056, -15.659088, 0), V(-1.354713, -15.660992, 0), V(-1.473257, -15.676278, 0), V(-1.58628, -15.703087, 0), V(-1.694975, -15.738139, 0), V(-1.797744, -15.785833, 0), V(-1.896855, -15.841196, 0), V(-1.989539, -15.909101, 0), V(-2.076012, -15.985826, 0), V(-2.155455, -16.068813, 0), V(-2.224252, -16.157518, 0), V(-2.283399, -16.249573, 0), V(-2.332128, -16.345743, 0), V(-2.369594, -16.44619, 0), V(-2.395596, -16.550334, 0), V(-2.412615, -16.657945, 0), V(-2.414311, -16.731086, 0), V(-2.415171, -16.768182, 0)], [4, 1, 1, 1, 1, 1, 1, 1, 1, 1, 1, 1, 1, 1, 1, 1, 4], [0, 1.091422571, 2.145516843, 3.172569842, 4.178562979, 5.178154469, 6.181868002, 7.194278174, 8.227918432, 9.254613415, 10.245994977, 11.209837596, 12.161663635, 13.10878368, 14.055455738, 15.013766427, 16], False, 3, [1, 1, 1, 1, 1, 1, 1, 1, 1, 1, 1, 1, 1, 1, 1, 1, 1, 1, 1], False), False)
sketch11.addGeometry(Part.BSplineCurve([V(-0.297656, -16.051603, 0), V(-0.328936, -16.020058, 0), V(-0.390584, -15.957886, 0), V(-0.493606, -15.87825, 0), V(-0.601592, -15.809331, 0), V(-0.716708, -15.754692, 0), V(-0.837162, -15.710467, 0), V(-0.963913, -15.680762, 0), V(-1.096442, -15.661052, 0), V(-1.186876, -15.65911, 0), V(-1.233026, -15.65812, 0)], [4, 1, 1, 1, 1, 1, 1, 1, 4], [0, 1.01925491, 2.00884431, 2.983262333, 3.955970413, 4.92937149, 5.924503185, 6.940838805, 8], False, 3, [1, 1, 1, 1, 1, 1, 1, 1, 1, 1, 1], False), False)
sketch11.addGeometry(Part.BSplineCurve([V(0.027137, -16.797863, 0), V(0.021806, -16.759874, 0), V(0.011392, -16.685671, 0), V(-0.014206, -16.577987, 0), V(-0.043809, -16.475587, 0), V(-0.081667, -16.379021, 0), V(-0.125368, -16.288394, 0), V(-0.176328, -16.203623, 0), V(-0.232185, -16.123493, 0), V(-0.275916, -16.075474, 0), V(-0.297656, -16.051603, 0)], [4, 1, 1, 1, 1, 1, 1, 1, 4], [0, 1.1115466, 2.171125598, 3.205689823, 4.19946166, 5.17440286, 6.118867946, 7.064860634, 8], False, 3, [1, 1, 1, 1, 1, 1, 1, 1, 1, 1, 1], False), False)
sketch11.addGeometry(Part.LineSegment(V(3.584595, -15.766667, 0), V(4.396154, -15.766667, 0)), False)
sketch11.addGeometry(Part.LineSegment(V(4.396154, -15.766667, 0), V(2.863775, -20, 0)), False)
sketch11.addGeometry(Part.LineSegment(V(2.863775, -20, 0), V(2.131931, -20, 0)), False)
sketch11.addGeometry(Part.LineSegment(V(2.131931, -20, 0), V(0.597009, -15.766667, 0)), False)
sketch11.addGeometry(Part.LineSegment(V(0.597009, -15.766667, 0), V(1.406023, -15.766667, 0)), False)
sketch11.addGeometry(Part.LineSegment(V(1.406023, -15.766667, 0), V(2.496581, -18.773758, 0)), False)
sketch11.addGeometry(Part.LineSegment(V(2.496581, -18.773758, 0), V(3.584595, -15.766667, 0)), False)
sketch11.addConstraint(Sketcher.Constraint("Block", 1))
sketch11.addConstraint(Sketcher.Constraint("Block", 2))
sketch11.addConstraint(Sketcher.Constraint("Block", 3))
sketch11.addConstraint(Sketcher.Constraint("Block", 5))
sketch11.addConstraint(Sketcher.Constraint("Block", 6))
sketch11.addConstraint(Sketcher.Constraint("Block", 7))
sketch11.addConstraint(Sketcher.Constraint("Block", 9))
sketch11.addConstraint(Sketcher.Constraint("Block", 10))
sketch11.addConstraint(Sketcher.Constraint("Block", 11))
sketch11.addConstraint(Sketcher.Constraint("Block", 12))
sketch11.addConstraint(Sketcher.Constraint("Block", 13))
sketch11.addConstraint(Sketcher.Constraint("Block", 14))
sketch11.addConstraint(Sketcher.Constraint("Block", 15))
sketch11.addConstraint(Sketcher.Constraint("Coincident", 0, 2, 1, 2))
sketch11.addConstraint(Sketcher.Constraint("Coincident", 3, 1, 4, 1))
sketch11.addConstraint(Sketcher.Constraint("Coincident", 4, 2, 5, 2))
sketch11.addConstraint(Sketcher.Constraint("Coincident", 7, 1, 8, 1))
sketch11.addConstraint(Sketcher.Constraint("Coincident", 8, 2, 9, 2))
sketch11.addConstraint(Sketcher.Constraint("Coincident", 15, 1, 0, 1))
sketch11.addConstraint(Sketcher.Constraint("Coincident", 16, 2, 17, 1))
sketch11.addConstraint(Sketcher.Constraint("Coincident", 17, 2, 18, 1))
sketch11.addConstraint(Sketcher.Constraint("Coincident", 18, 2, 19, 1))
sketch11.addConstraint(Sketcher.Constraint("Coincident", 19, 2, 20, 1))
sketch11.addConstraint(Sketcher.Constraint("Coincident", 20, 2, 21, 1))
sketch11.addConstraint(Sketcher.Constraint("Coincident", 21, 2, 22, 1))
sketch11.addConstraint(Sketcher.Constraint("Coincident", 22, 2, 16, 1))
sketch11.addConstraint(Sketcher.Constraint("Horizontal", 16))
sketch11.addConstraint(Sketcher.Constraint("Horizontal", 18))
sketch11.addConstraint(Sketcher.Constraint("Horizontal", 20))
sketch11.addConstraint(Sketcher.Constraint("Horizontal", 16, 2, 19, 2))
sketch11.addConstraint(Sketcher.Constraint("DistanceY", 17, 2, -1, 1, 20.0))
sketch11.addConstraint(Sketcher.Constraint("DistanceX", 16, 1, 16, 2, 0.811558))
sketch11.addConstraint(Sketcher.Constraint("DistanceX", 8, 2, 18, 2, 1.8877))
sketch11.addConstraint(Sketcher.Constraint("DistanceX", 0, 2, 19, 2, 1.329701))
sketch11.addConstraint(Sketcher.Constraint("Distance", 19, 4.50301))
sketch11.addConstraint(Sketcher.Constraint("Distance", 22, 3.19787))
sketch11.addConstraint(Sketcher.Constraint("DistanceX", 18, 2, 18, 1, 0.731844))
sketch11.addConstraint(Sketcher.Constraint("DistanceX", 20, 1, 20, 2, 0.809014))
sketch11.addConstraint(Sketcher.Constraint("DistanceX", -1, 1, 21, 2, 2.496581))
sketch11.addConstraint(Sketcher.Constraint("DistanceY", 21, 2, -1, 1, 18.773758))
pocket6 = body.newObject("PartDesign::Pocket", "Pocket005")
pocket6.Profile = sketch11
pocket6.Length = 0.5
pocket6.Reversed = True
doc.recompute()

chamfer2 = body.newObject("PartDesign::Chamfer", "Chamfer001")
chamfer2.Base = (pocket6, edges_at(pocket6, [
    (-20, 6.35, -16.75),
    (20, 6.35, -16.75),
    (20, 6.35, 23.25),
    (-20, 6.35, 23.25),
]))
chamfer2.Size = 1

doc.recompute()
